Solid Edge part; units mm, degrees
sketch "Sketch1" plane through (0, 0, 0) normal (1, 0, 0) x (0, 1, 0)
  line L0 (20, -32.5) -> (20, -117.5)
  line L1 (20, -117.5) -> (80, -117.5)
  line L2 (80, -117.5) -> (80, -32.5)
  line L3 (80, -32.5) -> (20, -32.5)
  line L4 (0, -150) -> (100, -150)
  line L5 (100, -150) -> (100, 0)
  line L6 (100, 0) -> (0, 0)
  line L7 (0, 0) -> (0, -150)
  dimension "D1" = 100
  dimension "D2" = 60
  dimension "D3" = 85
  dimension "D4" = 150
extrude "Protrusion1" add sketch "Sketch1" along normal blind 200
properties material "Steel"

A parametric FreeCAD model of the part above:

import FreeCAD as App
import Part
import Sketcher
from FreeCAD import Vector

doc = App.newDocument("Part")
body = doc.addObject("PartDesign::Body", "Body")

# Sketch on YZ plane
sketch1 = body.newObject("Sketcher::SketchObject", "Sketch")
sketch1.AttachmentSupport = (doc.getObject("YZ_Plane"), [""])
sketch1.MapMode = "FlatFace"
sketch1.addGeometry([
    Part.LineSegment(Vector(0, 0, 0), Vector(0, -150, 0)),  # 0
    Part.LineSegment(Vector(0, -150, 0), Vector(100, -150, 0)),  # 1
    Part.LineSegment(Vector(100, -150, 0), Vector(100, 0, 0)),  # 2
    Part.LineSegment(Vector(100, 0, 0), Vector(0, 0, 0)),  # 3
    Part.LineSegment(Vector(20, -118, 0), Vector(20, -32, 0)),  # 4
    Part.LineSegment(Vector(20, -32, 0), Vector(80, -32, 0)),  # 5
    Part.LineSegment(Vector(80, -32, 0), Vector(80, -118, 0)),  # 6
    Part.LineSegment(Vector(80, -118, 0), Vector(20, -118, 0)),  # 7
], False)
sketch1.addConstraint([
    Sketcher.Constraint("Coincident", 0, 2, 1, 1),
    Sketcher.Constraint("Coincident", 1, 2, 2, 1),
    Sketcher.Constraint("Coincident", 2, 2, 3, 1),
    Sketcher.Constraint("Coincident", 3, 2, 0, 1),
    Sketcher.Constraint("Coincident", 4, 2, 5, 1),
    Sketcher.Constraint("Coincident", 5, 2, 6, 1),
    Sketcher.Constraint("Coincident", 6, 2, 7, 1),
    Sketcher.Constraint("Coincident", 7, 2, 4, 1),
    Sketcher.Constraint("Vertical", 0),
    Sketcher.Constraint("Horizontal", 1),
    Sketcher.Constraint("Vertical", 2),
    Sketcher.Constraint("Horizontal", 3),
    Sketcher.Constraint("Vertical", 4),
    Sketcher.Constraint("Horizontal", 5),
    Sketcher.Constraint("Vertical", 6),
    Sketcher.Constraint("Horizontal", 7),
    Sketcher.Constraint("Coincident", 3, 2, -1, 1),
    Sketcher.Constraint("DistanceX", -1, 1, 4, 2, 20.0),
    Sketcher.Constraint("DistanceX", 5, 2, 2, 2, 20.0),
    Sketcher.Constraint("DistanceX", 1, 1, 1, 2, 100.0),
    Sketcher.Constraint("DistanceY", 0, 2, 0, 1, 150.0),
    Sketcher.Constraint("DistanceY", 4, 1, 4, 2, 85.0),
    Sketcher.Constraint("DistanceY", 4, 2, -1, 1, 32.5),
])
pad1 = body.newObject("PartDesign::Pad", "Pad")
pad1.Profile = sketch1
pad1.Length = 200

doc.recompute()
